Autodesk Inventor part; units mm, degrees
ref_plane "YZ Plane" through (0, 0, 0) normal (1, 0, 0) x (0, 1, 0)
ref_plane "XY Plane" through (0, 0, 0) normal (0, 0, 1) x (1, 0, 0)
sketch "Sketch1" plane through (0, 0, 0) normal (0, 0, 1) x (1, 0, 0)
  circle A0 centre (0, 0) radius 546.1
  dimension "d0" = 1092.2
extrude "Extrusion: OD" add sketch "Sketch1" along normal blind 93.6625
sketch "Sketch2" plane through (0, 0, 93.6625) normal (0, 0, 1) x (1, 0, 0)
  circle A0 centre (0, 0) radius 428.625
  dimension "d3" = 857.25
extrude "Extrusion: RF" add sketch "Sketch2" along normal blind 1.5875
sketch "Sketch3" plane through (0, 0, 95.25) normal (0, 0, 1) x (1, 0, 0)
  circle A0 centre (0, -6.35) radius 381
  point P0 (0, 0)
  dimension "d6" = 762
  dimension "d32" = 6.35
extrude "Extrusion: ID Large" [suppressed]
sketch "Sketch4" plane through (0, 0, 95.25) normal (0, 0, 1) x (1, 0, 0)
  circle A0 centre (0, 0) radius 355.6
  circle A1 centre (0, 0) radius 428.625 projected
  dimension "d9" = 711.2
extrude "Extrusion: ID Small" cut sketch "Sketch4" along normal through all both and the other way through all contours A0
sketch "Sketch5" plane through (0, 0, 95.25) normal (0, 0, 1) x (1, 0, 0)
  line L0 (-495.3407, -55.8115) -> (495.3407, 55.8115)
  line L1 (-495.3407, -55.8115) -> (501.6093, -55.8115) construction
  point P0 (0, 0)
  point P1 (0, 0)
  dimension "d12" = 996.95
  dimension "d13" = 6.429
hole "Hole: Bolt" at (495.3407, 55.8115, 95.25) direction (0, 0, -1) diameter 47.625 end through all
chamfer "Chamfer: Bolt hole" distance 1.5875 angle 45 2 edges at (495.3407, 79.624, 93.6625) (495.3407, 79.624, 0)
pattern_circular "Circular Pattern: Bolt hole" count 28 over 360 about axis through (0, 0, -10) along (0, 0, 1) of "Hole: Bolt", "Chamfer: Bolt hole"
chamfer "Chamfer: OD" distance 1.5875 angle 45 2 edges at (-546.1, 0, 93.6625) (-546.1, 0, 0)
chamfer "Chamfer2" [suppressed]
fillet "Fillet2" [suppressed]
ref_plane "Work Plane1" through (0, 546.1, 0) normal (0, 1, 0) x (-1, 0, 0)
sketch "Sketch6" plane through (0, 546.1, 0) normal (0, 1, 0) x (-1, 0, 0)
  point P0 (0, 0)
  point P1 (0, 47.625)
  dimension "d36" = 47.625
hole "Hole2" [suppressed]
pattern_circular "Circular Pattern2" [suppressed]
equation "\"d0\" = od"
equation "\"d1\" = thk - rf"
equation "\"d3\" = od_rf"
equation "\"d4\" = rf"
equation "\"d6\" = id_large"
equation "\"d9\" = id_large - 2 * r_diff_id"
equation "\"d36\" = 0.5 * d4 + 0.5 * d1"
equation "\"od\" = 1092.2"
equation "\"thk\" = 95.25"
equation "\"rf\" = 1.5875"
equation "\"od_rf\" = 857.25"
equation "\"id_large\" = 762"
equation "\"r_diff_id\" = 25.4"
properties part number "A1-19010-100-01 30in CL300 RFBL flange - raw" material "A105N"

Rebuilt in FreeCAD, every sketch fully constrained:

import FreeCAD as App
import Part
import Sketcher

V = App.Vector
Q = App.Units.Quantity


def edges_at(feature, points):
    """Names of the edges that pass closest to the given points."""
    edges = feature.Shape.Edges
    near = lambda p: min(range(len(edges)), key=lambda i: edges[i].distToShape(Part.Vertex(*p))[0])
    return sorted({f"Edge{near(p) + 1}" for p in points})

doc = App.newDocument("Part")
body = doc.addObject("PartDesign::Body", "Body")

sketch1 = doc.addObject("Sketcher::SketchObject", "Sketch")
body.addObject(sketch1)
sketch1.AttachmentSupport = (doc.XY_Plane, [""])
sketch1.MapMode = "FlatFace"
sketch1.addGeometry(Part.Circle(V(0, 0, 0), V(0, 0, 1), 546), False)
sketch1.addConstraint([
    Sketcher.Constraint("Coincident", 0, 3, -1, 1),
    Sketcher.Constraint("Diameter", 0, Q("43 in")),
])
pad1 = doc.addObject("PartDesign::Pad", "Pad")
body.addObject(pad1)
pad1.Profile = sketch1
pad1.Length = Q("3.6875 in")

sketch2 = doc.addObject("Sketcher::SketchObject", "Sketch001")
body.addObject(sketch2)
sketch2.AttachmentSupport = (doc.XY_Plane, [""])
sketch2.MapMode = "FlatFace"
sketch2.AttachmentOffset = App.Placement(V(0, 0, 3.6875 * 25.4), App.Rotation())
sketch2.addGeometry(Part.Circle(V(0, 0, 0), V(0, 0, 1), 429), False)
sketch2.addConstraint([
    Sketcher.Constraint("Coincident", 0, 3, -1, 1),
    Sketcher.Constraint("Diameter", 0, Q("33.75 in")),
])
pad2 = doc.addObject("PartDesign::Pad", "Pad001")
body.addObject(pad2)
pad2.Profile = sketch2
pad2.Length = Q("0.0625 in")

sketch3 = doc.addObject("Sketcher::SketchObject", "Sketch002")
body.addObject(sketch3)
sketch3.AttachmentSupport = (doc.XY_Plane, [""])
sketch3.MapMode = "FlatFace"
sketch3.AttachmentOffset = App.Placement(V(0, 0, 3.75 * 25.4), App.Rotation())
sketch3.addGeometry(Part.Circle(V(0, 0, 0), V(0, 0, 1), 356), False)
sketch3.addConstraint([
    Sketcher.Constraint("Coincident", 0, 3, -1, 1),
    Sketcher.Constraint("Diameter", 0, Q("28 in")),
])
pocket1 = doc.addObject("PartDesign::Pocket", "Pocket")
body.addObject(pocket1)
pocket1.Profile = sketch3
pocket1.Type = "ThroughAll"
pocket1.Midplane = True

sketch4 = doc.addObject("Sketcher::SketchObject", "Sketch003")
body.addObject(sketch4)
sketch4.AttachmentSupport = (doc.XY_Plane, [""])
sketch4.MapMode = "FlatFace"
sketch4.AttachmentOffset = App.Placement(V(0, 0, 3.75 * 25.4), App.Rotation())
sketch4.addGeometry(Part.Circle(V(495, 56, 0), V(0, 0, 1), 24), False)
sketch4.addConstraint([
    Sketcher.Constraint("Diameter", 0, Q("1.875 in")),
    Sketcher.Constraint("DistanceX", -1, 1, 0, 3, Q("19.5016 in")),
    Sketcher.Constraint("DistanceY", -1, 1, 0, 3, Q("2.1973 in")),
])
doc.recompute()
hole = doc.addObject("PartDesign::Hole", "Hole")
body.addObject(hole)
hole.Profile = sketch4
hole.ThreadType = "None"
hole.Diameter = Q("1.875 in")
hole.DepthType = "ThroughAll"
doc.recompute()

chamfer = doc.addObject("PartDesign::Chamfer", "Chamfer")
body.addObject(chamfer)
chamfer.Base = (hole, edges_at(hole, [(495.341, 79.624, 93.662), (495.341, 79.624, 0)]))
chamfer.Size = Q("0.0625 in")
doc.recompute()

polarpattern = doc.addObject("PartDesign::PolarPattern", "PolarPattern")
body.addObject(polarpattern)
polarpattern.Originals = [hole, chamfer]
polarpattern.Axis = (doc.Z_Axis, [""])
polarpattern.Angle = 360
polarpattern.Occurrences = 28
body.Tip = polarpattern
doc.recompute()

chamfer2 = doc.addObject("PartDesign::Chamfer", "Chamfer001")
body.addObject(chamfer2)
chamfer2.Base = (polarpattern, edges_at(polarpattern, [(-546.1, 0, 93.662), (-546.1, 0, 0)]))
chamfer2.Size = Q("0.0625 in")

doc.recompute()
